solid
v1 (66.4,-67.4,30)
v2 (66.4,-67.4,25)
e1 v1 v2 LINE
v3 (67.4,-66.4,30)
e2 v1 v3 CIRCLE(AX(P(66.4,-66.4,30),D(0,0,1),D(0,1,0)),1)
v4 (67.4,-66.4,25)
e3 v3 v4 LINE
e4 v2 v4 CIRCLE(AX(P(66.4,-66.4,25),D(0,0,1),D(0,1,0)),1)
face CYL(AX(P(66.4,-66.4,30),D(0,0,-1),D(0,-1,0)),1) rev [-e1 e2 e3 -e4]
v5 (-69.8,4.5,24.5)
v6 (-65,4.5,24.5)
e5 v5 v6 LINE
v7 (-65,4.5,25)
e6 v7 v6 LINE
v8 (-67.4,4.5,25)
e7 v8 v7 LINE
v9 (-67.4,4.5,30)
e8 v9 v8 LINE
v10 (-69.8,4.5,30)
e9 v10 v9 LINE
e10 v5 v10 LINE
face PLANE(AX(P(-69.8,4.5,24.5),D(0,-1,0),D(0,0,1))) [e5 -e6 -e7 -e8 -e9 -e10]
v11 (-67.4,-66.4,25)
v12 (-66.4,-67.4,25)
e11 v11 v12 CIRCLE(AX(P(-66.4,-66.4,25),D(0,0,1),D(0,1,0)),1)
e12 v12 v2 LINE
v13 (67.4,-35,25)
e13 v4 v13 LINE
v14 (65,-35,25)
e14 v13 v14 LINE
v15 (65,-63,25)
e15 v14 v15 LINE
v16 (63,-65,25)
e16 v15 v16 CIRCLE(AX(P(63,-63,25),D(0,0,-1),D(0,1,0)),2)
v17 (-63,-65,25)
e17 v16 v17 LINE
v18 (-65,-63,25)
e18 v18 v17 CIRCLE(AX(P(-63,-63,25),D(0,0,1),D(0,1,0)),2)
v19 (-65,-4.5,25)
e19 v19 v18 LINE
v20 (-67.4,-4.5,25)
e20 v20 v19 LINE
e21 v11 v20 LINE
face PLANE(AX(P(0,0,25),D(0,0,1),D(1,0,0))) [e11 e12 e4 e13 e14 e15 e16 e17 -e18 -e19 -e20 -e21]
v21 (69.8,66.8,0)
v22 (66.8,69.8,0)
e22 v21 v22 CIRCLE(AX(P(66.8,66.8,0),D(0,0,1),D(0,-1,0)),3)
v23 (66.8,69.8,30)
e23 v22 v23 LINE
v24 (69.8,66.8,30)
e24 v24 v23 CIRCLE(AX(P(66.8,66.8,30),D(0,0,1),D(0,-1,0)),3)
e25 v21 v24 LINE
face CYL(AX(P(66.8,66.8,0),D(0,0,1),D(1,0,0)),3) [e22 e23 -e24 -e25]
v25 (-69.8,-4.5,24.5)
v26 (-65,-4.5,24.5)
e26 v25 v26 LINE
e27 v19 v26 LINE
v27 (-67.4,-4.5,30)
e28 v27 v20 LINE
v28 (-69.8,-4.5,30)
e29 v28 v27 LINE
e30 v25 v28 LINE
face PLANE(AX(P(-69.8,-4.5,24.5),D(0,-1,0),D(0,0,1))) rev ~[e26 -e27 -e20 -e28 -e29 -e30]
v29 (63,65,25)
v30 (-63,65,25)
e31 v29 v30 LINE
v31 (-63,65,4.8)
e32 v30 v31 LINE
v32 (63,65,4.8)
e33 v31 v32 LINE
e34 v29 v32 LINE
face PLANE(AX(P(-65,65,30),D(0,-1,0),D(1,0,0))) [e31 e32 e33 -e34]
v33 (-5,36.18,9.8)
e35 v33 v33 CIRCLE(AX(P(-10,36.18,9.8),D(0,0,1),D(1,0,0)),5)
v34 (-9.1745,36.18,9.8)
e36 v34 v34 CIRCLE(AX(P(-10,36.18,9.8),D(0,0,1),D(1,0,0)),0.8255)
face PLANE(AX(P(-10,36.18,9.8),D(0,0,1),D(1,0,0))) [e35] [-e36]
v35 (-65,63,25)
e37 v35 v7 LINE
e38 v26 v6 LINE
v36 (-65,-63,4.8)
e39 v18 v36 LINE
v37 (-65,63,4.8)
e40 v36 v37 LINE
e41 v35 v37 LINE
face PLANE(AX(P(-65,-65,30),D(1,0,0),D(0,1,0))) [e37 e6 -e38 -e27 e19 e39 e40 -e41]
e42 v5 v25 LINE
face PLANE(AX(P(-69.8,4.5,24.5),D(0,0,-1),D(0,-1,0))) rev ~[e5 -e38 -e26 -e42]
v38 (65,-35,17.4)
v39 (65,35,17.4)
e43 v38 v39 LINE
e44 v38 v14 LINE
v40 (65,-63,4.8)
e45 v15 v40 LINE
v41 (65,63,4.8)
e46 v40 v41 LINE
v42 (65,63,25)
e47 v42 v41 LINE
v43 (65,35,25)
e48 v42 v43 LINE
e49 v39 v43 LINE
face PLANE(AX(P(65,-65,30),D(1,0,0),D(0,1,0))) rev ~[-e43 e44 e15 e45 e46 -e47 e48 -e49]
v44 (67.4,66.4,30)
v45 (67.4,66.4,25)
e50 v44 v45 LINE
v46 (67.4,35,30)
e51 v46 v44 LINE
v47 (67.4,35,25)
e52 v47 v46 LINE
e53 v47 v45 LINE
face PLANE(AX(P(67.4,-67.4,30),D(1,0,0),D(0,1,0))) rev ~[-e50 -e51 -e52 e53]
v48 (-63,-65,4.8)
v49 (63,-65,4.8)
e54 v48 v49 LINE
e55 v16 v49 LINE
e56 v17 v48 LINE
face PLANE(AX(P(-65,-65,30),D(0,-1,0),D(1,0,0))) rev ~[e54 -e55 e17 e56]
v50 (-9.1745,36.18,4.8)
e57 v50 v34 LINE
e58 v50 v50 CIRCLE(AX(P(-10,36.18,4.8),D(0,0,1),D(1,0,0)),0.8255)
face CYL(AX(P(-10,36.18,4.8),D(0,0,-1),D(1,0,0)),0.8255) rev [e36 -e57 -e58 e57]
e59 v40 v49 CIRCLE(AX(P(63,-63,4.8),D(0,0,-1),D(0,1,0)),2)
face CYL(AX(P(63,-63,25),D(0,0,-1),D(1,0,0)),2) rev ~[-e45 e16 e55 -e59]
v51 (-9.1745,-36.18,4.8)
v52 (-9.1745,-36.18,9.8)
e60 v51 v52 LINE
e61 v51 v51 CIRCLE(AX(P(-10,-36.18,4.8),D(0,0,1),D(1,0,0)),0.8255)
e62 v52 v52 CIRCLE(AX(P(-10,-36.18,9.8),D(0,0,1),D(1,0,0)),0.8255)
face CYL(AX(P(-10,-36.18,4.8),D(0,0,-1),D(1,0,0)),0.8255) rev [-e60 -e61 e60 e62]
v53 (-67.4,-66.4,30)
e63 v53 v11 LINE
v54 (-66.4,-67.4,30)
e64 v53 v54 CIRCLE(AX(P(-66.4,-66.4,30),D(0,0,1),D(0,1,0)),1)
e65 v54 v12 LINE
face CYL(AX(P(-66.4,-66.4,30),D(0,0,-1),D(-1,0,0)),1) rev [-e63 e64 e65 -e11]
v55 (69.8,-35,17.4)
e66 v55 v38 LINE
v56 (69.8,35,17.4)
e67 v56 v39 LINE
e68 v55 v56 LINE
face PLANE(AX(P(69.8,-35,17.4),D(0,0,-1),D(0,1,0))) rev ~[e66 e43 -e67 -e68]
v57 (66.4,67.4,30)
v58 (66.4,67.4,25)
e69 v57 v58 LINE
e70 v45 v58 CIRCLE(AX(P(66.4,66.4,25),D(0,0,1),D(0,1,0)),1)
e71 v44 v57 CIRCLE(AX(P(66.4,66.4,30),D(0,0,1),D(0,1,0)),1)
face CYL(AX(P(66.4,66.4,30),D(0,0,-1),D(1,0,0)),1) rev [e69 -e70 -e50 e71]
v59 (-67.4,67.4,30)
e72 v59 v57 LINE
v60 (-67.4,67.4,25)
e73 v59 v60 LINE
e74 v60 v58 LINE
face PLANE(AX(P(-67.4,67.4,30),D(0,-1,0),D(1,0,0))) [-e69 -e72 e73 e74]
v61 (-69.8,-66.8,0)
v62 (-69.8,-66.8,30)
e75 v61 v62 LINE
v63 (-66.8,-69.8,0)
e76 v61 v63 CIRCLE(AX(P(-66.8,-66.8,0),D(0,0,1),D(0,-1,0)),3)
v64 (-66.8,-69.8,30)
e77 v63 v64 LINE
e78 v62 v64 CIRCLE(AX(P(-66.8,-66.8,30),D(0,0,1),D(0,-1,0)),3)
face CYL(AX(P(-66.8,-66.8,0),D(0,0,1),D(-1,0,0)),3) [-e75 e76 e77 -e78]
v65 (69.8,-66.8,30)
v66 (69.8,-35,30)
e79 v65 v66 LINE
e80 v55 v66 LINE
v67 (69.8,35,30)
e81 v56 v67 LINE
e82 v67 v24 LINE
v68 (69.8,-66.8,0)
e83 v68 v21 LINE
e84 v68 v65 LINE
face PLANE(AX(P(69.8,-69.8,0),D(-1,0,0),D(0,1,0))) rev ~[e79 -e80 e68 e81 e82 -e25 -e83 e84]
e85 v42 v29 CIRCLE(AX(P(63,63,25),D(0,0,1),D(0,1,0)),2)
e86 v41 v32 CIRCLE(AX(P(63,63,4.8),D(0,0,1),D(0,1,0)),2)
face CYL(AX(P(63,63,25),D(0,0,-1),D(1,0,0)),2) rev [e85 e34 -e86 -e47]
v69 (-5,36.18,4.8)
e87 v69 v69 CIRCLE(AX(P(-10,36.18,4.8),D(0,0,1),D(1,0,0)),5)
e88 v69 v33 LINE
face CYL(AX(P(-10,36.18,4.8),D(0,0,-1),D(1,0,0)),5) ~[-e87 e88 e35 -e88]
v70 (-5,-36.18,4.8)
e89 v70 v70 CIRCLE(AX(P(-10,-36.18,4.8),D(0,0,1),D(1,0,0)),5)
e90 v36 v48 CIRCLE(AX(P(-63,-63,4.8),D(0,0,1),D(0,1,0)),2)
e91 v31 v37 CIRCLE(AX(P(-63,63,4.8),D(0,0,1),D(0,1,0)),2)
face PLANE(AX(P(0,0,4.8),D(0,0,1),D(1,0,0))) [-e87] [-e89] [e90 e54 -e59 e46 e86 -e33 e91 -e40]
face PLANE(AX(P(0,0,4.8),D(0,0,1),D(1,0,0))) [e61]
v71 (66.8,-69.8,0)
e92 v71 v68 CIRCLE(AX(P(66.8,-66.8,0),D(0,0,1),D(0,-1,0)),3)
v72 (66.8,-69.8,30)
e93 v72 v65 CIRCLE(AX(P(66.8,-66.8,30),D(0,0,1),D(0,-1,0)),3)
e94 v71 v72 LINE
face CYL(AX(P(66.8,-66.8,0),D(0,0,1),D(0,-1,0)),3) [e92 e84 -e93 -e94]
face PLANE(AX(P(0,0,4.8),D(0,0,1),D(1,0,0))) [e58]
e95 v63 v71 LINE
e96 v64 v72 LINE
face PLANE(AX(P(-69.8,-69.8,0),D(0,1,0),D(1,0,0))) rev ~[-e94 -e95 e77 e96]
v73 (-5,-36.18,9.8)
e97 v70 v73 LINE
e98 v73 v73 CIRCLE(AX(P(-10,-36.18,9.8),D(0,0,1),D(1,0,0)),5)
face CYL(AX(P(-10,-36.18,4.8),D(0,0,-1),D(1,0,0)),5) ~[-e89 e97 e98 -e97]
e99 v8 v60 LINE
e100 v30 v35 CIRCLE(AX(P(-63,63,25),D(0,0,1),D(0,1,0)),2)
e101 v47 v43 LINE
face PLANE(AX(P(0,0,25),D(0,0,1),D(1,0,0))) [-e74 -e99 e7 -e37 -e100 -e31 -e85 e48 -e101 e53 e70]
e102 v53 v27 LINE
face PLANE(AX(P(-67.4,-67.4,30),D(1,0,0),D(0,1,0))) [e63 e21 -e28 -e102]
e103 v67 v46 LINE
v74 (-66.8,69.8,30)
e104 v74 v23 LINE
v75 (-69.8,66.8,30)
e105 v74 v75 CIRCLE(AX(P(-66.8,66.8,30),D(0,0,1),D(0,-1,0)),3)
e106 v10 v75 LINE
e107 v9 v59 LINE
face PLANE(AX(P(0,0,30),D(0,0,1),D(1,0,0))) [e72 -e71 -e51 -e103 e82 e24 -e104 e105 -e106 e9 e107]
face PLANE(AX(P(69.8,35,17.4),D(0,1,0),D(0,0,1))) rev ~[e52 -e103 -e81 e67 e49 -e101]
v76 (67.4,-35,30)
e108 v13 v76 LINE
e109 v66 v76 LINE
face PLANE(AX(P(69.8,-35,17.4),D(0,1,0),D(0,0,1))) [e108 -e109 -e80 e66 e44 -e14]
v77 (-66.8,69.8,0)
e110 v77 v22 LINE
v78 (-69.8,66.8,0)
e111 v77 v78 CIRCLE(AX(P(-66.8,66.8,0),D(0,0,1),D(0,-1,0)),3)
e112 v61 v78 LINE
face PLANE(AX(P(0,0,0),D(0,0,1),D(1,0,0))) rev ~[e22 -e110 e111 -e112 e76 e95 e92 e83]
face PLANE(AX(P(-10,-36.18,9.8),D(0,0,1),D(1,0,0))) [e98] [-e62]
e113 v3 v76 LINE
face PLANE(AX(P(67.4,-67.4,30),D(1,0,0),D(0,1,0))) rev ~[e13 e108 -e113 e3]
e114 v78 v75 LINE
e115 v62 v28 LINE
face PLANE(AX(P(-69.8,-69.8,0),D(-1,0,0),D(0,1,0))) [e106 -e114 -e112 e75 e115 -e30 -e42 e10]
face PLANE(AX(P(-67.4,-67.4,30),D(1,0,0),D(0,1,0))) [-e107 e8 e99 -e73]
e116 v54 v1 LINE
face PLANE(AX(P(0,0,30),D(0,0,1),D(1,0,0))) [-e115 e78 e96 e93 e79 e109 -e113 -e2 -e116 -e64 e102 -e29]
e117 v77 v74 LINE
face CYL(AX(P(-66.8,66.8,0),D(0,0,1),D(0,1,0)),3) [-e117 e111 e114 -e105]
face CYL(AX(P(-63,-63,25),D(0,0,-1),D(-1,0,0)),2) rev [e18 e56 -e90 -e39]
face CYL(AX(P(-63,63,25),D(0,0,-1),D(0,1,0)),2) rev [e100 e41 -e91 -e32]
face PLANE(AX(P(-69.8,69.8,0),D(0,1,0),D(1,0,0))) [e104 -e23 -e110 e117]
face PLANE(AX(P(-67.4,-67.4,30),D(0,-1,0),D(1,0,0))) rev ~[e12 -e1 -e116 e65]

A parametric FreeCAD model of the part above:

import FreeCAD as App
import Part
import Sketcher
from FreeCAD import Vector
Q = App.Units.Quantity


def edges_at(feature, points):
    """Names of the edges that pass closest to the given points."""
    edges = feature.Shape.Edges
    near = lambda p: min(range(len(edges)), key=lambda i: edges[i].distToShape(Part.Vertex(*p))[0])
    return sorted({f"Edge{near(p) + 1}" for p in points})

doc = App.newDocument("Part")
params = doc.addObject("Spreadsheet::Sheet", "Params")
for row, (alias, value) in enumerate([
    ("sketch1_width", "139.6 mm"),
    ("pad1_length", "30 mm"),
    ("sketch2_width", "130 mm"),
    ("pocket1_length", "25.2 mm"),
    ("sketch3_width", "134.8 mm"),
    ("pocket2_length", "5 mm"),
    ("sketch4_diameter", "10 mm"),
    ("pad2_length", "5 mm"),
    ("sketch5_width", "70 mm"),
    ("sketch5_height", "12.6 mm"),
    ("pocket3_length", "5 mm"),
    ("sketch6_width", "9 mm"),
    ("sketch6_height", "5.5 mm"),
    ("pocket4_length", "5 mm"),
    ("fillet_radius", "2 mm"),
    ("fillet2_radius", "2 mm"),
    ("fillet3_radius", "2 mm"),
    ("fillet4_radius", "2 mm"),
    ("fillet5_radius", "1 mm"),
    ("fillet6_radius", "1 mm"),
    ("fillet7_radius", "1 mm"),
    ("fillet8_radius", "3 mm"),
    ("fillet9_radius", "3 mm"),
    ("fillet10_radius", "3 mm"),
    ("fillet11_radius", "3 mm"),
], start=1):
    params.set(f"A{row}", alias)
    params.set(f"B{row}", "=" + value)
    params.setAlias(f"B{row}", alias)

body = doc.addObject("PartDesign::Body", "Body")

# Sketch on XY plane
sketch1 = body.newObject("Sketcher::SketchObject", "Sketch")
sketch1.AttachmentSupport = (doc.getObject("XY_Plane"), [""])
sketch1.MapMode = "FlatFace"
sketch1.addGeometry([
    Part.LineSegment(Vector(-70, 70, 0), Vector(-70, -70, 0)),
    Part.LineSegment(Vector(-70, -70, 0), Vector(70, -70, 0)),
    Part.LineSegment(Vector(70, -70, 0), Vector(70, 70, 0)),
    Part.LineSegment(Vector(70, 70, 0), Vector(-70, 70, 0)),
], False)
sketch1.addConstraint([
    Sketcher.Constraint("Coincident", 0, 2, 1, 1),
    Sketcher.Constraint("Coincident", 1, 2, 2, 1),
    Sketcher.Constraint("Coincident", 2, 2, 3, 1),
    Sketcher.Constraint("Coincident", 3, 2, 0, 1),
    Sketcher.Constraint("Vertical", 0),
    Sketcher.Constraint("Horizontal", 1),
    Sketcher.Constraint("Vertical", 2),
    Sketcher.Constraint("Horizontal", 3),
    Sketcher.Constraint("Symmetric", 0, 2, 2, 2, -1, 1),
    Sketcher.Constraint("Equal", 3, 0),
    Sketcher.Constraint("DistanceX", 1, 1, 1, 2, Q("139.6 mm")),
])
sketch1.setExpression("Constraints[10]", "Params.sketch1_width")
pad1 = body.newObject("PartDesign::Pad", "Pad")
pad1.Profile = sketch1
pad1.setExpression("Length", "Params.pad1_length")

# Sketch on XY plane
sketch2 = body.newObject("Sketcher::SketchObject", "Sketch001")
sketch2.AttachmentSupport = (doc.getObject("XY_Plane"), [""])
sketch2.MapMode = "FlatFace"
sketch2.AttachmentOffset = App.Placement(Vector(0, 0, 30), App.Rotation())
sketch2.addGeometry([
    Part.LineSegment(Vector(-65, 65, 0), Vector(-65, -65, 0)),
    Part.LineSegment(Vector(-65, -65, 0), Vector(65, -65, 0)),
    Part.LineSegment(Vector(65, -65, 0), Vector(65, 65, 0)),
    Part.LineSegment(Vector(65, 65, 0), Vector(-65, 65, 0)),
], False)
sketch2.addConstraint([
    Sketcher.Constraint("Coincident", 0, 2, 1, 1),
    Sketcher.Constraint("Coincident", 1, 2, 2, 1),
    Sketcher.Constraint("Coincident", 2, 2, 3, 1),
    Sketcher.Constraint("Coincident", 3, 2, 0, 1),
    Sketcher.Constraint("Vertical", 0),
    Sketcher.Constraint("Horizontal", 1),
    Sketcher.Constraint("Vertical", 2),
    Sketcher.Constraint("Horizontal", 3),
    Sketcher.Constraint("Symmetric", 0, 2, 2, 2, -1, 1),
    Sketcher.Constraint("Equal", 3, 0),
    Sketcher.Constraint("DistanceX", 1, 1, 1, 2, Q("130 mm")),
])
sketch2.setExpression("Constraints[10]", "Params.sketch2_width")
pocket1 = body.newObject("PartDesign::Pocket", "Pocket")
pocket1.Profile = sketch2
pocket1.setExpression("Length", "Params.pocket1_length")

# Sketch on XY plane
sketch3 = body.newObject("Sketcher::SketchObject", "Sketch002")
sketch3.AttachmentSupport = (doc.getObject("XY_Plane"), [""])
sketch3.MapMode = "FlatFace"
sketch3.AttachmentOffset = App.Placement(Vector(0, 0, 30), App.Rotation())
sketch3.addGeometry([
    Part.LineSegment(Vector(-67, 67, 0), Vector(-67, -67, 0)),
    Part.LineSegment(Vector(-67, -67, 0), Vector(67, -67, 0)),
    Part.LineSegment(Vector(67, -67, 0), Vector(67, 67, 0)),
    Part.LineSegment(Vector(67, 67, 0), Vector(-67, 67, 0)),
], False)
sketch3.addConstraint([
    Sketcher.Constraint("Coincident", 0, 2, 1, 1),
    Sketcher.Constraint("Coincident", 1, 2, 2, 1),
    Sketcher.Constraint("Coincident", 2, 2, 3, 1),
    Sketcher.Constraint("Coincident", 3, 2, 0, 1),
    Sketcher.Constraint("Vertical", 0),
    Sketcher.Constraint("Horizontal", 1),
    Sketcher.Constraint("Vertical", 2),
    Sketcher.Constraint("Horizontal", 3),
    Sketcher.Constraint("Symmetric", 0, 2, 2, 2, -1, 1),
    Sketcher.Constraint("Equal", 3, 0),
    Sketcher.Constraint("DistanceX", 1, 1, 1, 2, Q("134.8 mm")),
])
sketch3.setExpression("Constraints[10]", "Params.sketch3_width")
pocket2 = body.newObject("PartDesign::Pocket", "Pocket001")
pocket2.Profile = sketch3
pocket2.setExpression("Length", "Params.pocket2_length")

# Sketch on XY plane
sketch4 = body.newObject("Sketcher::SketchObject", "Sketch003")
sketch4.AttachmentSupport = (doc.getObject("XY_Plane"), [""])
sketch4.MapMode = "FlatFace"
sketch4.AttachmentOffset = App.Placement(Vector(0, 0, 4.8), App.Rotation())
sketch4.addGeometry([
    Part.Circle(Vector(-10, 36.2, 0), Vector(0, 0, 1), 5),
    Part.Circle(Vector(-10, 36.2, 0), Vector(0, 0, 1), 0.8),
    Part.Circle(Vector(-10, -36.2, 0), Vector(0, 0, 1), 5),
    Part.Circle(Vector(-10, -36.2, 0), Vector(0, 0, 1), 0.8),
], False)
sketch4.addConstraint([
    Sketcher.Constraint("Coincident", 1, 3, 0, 3),
    Sketcher.Constraint("Coincident", 3, 3, 2, 3),
    Sketcher.Constraint("Equal", 0, 2),
    Sketcher.Constraint("Equal", 1, 3),
    Sketcher.Constraint("Symmetric", 0, 3, 2, 3, -1),
    Sketcher.Constraint("Diameter", 0, Q("10 mm")),
    Sketcher.Constraint("Diameter", 1, Q("1.651 mm")),
    Sketcher.Constraint("DistanceX", 0, 3, -1, 1, Q("10 mm")),
    Sketcher.Constraint("DistanceY", -1, 1, 0, 3, Q("36.18 mm")),
])
sketch4.setExpression("Constraints[5]", "Params.sketch4_diameter")
pad2 = body.newObject("PartDesign::Pad", "Pad001")
pad2.Profile = sketch4
pad2.setExpression("Length", "Params.pad2_length")

# Sketch on YZ plane
sketch5 = body.newObject("Sketcher::SketchObject", "Sketch004")
sketch5.AttachmentSupport = (doc.getObject("YZ_Plane"), [""])
sketch5.MapMode = "FlatFace"
sketch5.AttachmentOffset = App.Placement(Vector(0, 0, 69.8), App.Rotation())
sketch5.addGeometry([
    Part.LineSegment(Vector(-35, 30, 0), Vector(-35, 17, 0)),
    Part.LineSegment(Vector(-35, 17, 0), Vector(35, 17, 0)),
    Part.LineSegment(Vector(35, 17, 0), Vector(35, 30, 0)),
    Part.LineSegment(Vector(35, 30, 0), Vector(-35, 30, 0)),
], False)
sketch5.addConstraint([
    Sketcher.Constraint("Coincident", 0, 2, 1, 1),
    Sketcher.Constraint("Coincident", 1, 2, 2, 1),
    Sketcher.Constraint("Coincident", 2, 2, 3, 1),
    Sketcher.Constraint("Coincident", 3, 2, 0, 1),
    Sketcher.Constraint("Vertical", 0),
    Sketcher.Constraint("Horizontal", 1),
    Sketcher.Constraint("Vertical", 2),
    Sketcher.Constraint("Horizontal", 3),
    Sketcher.Constraint("DistanceX", 1, 1, 1, 2, Q("70 mm")),
    Sketcher.Constraint("DistanceY", 0, 2, 0, 1, Q("12.6 mm")),
    Sketcher.Constraint("DistanceX", 0, 2, -1, 1, Q("35 mm")),
    Sketcher.Constraint("DistanceY", -1, 1, 2, 2, Q("30 mm")),
])
sketch5.setExpression("Constraints[8]", "Params.sketch5_width")
sketch5.setExpression("Constraints[9]", "Params.sketch5_height")
pocket3 = body.newObject("PartDesign::Pocket", "Pocket002")
pocket3.Profile = sketch5
pocket3.setExpression("Length", "Params.pocket3_length")

# Sketch on YZ plane
sketch6 = body.newObject("Sketcher::SketchObject", "Sketch005")
sketch6.AttachmentSupport = (doc.getObject("YZ_Plane"), [""])
sketch6.MapMode = "FlatFace"
sketch6.AttachmentOffset = App.Placement(Vector(0, 0, -69.8), App.Rotation())
sketch6.addGeometry([
    Part.LineSegment(Vector(4, 30, 0), Vector(4, 24, 0)),
    Part.LineSegment(Vector(4, 24, 0), Vector(-4, 24, 0)),
    Part.LineSegment(Vector(-4, 24, 0), Vector(-4, 30, 0)),
    Part.LineSegment(Vector(-4, 30, 0), Vector(4, 30, 0)),
], False)
sketch6.addConstraint([
    Sketcher.Constraint("Coincident", 0, 2, 1, 1),
    Sketcher.Constraint("Coincident", 1, 2, 2, 1),
    Sketcher.Constraint("Coincident", 2, 2, 3, 1),
    Sketcher.Constraint("Coincident", 3, 2, 0, 1),
    Sketcher.Constraint("Vertical", 0),
    Sketcher.Constraint("Horizontal", 1),
    Sketcher.Constraint("Vertical", 2),
    Sketcher.Constraint("Horizontal", 3),
    Sketcher.Constraint("DistanceX", 1, 2, 1, 1, Q("9 mm")),
    Sketcher.Constraint("DistanceY", 0, 2, 0, 1, Q("5.5 mm")),
    Sketcher.Constraint("DistanceY", -1, 1, 2, 2, Q("30 mm")),
    Sketcher.Constraint("DistanceX", -1, 1, 0, 2, Q("4.5 mm")),
])
sketch6.setExpression("Constraints[8]", "Params.sketch6_width")
sketch6.setExpression("Constraints[9]", "Params.sketch6_height")
pocket4 = body.newObject("PartDesign::Pocket", "Pocket003")
pocket4.Profile = sketch6
pocket4.setExpression("Length", "Params.pocket4_length")
pocket4.Reversed = True
doc.recompute()

fillet = body.newObject("PartDesign::Fillet", "Fillet")
fillet.Base = (pocket4, edges_at(pocket4, [(65, -65, 14.9)]))
fillet.setExpression("Radius", "Params.fillet_radius")
doc.recompute()

fillet2 = body.newObject("PartDesign::Fillet", "Fillet001")
fillet2.Base = (fillet, edges_at(fillet, [(65, 65, 14.9)]))
fillet2.setExpression("Radius", "Params.fillet2_radius")
doc.recompute()

fillet3 = body.newObject("PartDesign::Fillet", "Fillet002")
fillet3.Base = (fillet2, edges_at(fillet2, [(-65, 65, 14.9)]))
fillet3.setExpression("Radius", "Params.fillet3_radius")
doc.recompute()

fillet4 = body.newObject("PartDesign::Fillet", "Fillet003")
fillet4.Base = (fillet3, edges_at(fillet3, [(-65, -65, 14.9)]))
fillet4.setExpression("Radius", "Params.fillet4_radius")
doc.recompute()

fillet5 = body.newObject("PartDesign::Fillet", "Fillet004")
fillet5.Base = (fillet4, edges_at(fillet4, [(-67.4, -67.4, 27.5)]))
fillet5.setExpression("Radius", "Params.fillet5_radius")
doc.recompute()

fillet6 = body.newObject("PartDesign::Fillet", "Fillet005")
fillet6.Base = (fillet5, edges_at(fillet5, [(67.4, -67.4, 27.5)]))
fillet6.setExpression("Radius", "Params.fillet6_radius")
doc.recompute()

fillet7 = body.newObject("PartDesign::Fillet", "Fillet006")
fillet7.Base = (fillet6, edges_at(fillet6, [(67.4, 67.4, 27.5)]))
fillet7.setExpression("Radius", "Params.fillet7_radius")
doc.recompute()

fillet8 = body.newObject("PartDesign::Fillet", "Fillet007")
fillet8.Base = (fillet7, edges_at(fillet7, [(69.8, 69.8, 15)]))
fillet8.setExpression("Radius", "Params.fillet8_radius")
doc.recompute()

fillet9 = body.newObject("PartDesign::Fillet", "Fillet008")
fillet9.Base = (fillet8, edges_at(fillet8, [(-69.8, 69.8, 15)]))
fillet9.setExpression("Radius", "Params.fillet9_radius")
doc.recompute()

fillet10 = body.newObject("PartDesign::Fillet", "Fillet009")
fillet10.Base = (fillet9, edges_at(fillet9, [(-69.8, -69.8, 15)]))
fillet10.setExpression("Radius", "Params.fillet10_radius")
doc.recompute()

fillet11 = body.newObject("PartDesign::Fillet", "Fillet010")
fillet11.Base = (fillet10, edges_at(fillet10, [(69.8, -69.8, 15)]))
fillet11.setExpression("Radius", "Params.fillet11_radius")

doc.recompute()
